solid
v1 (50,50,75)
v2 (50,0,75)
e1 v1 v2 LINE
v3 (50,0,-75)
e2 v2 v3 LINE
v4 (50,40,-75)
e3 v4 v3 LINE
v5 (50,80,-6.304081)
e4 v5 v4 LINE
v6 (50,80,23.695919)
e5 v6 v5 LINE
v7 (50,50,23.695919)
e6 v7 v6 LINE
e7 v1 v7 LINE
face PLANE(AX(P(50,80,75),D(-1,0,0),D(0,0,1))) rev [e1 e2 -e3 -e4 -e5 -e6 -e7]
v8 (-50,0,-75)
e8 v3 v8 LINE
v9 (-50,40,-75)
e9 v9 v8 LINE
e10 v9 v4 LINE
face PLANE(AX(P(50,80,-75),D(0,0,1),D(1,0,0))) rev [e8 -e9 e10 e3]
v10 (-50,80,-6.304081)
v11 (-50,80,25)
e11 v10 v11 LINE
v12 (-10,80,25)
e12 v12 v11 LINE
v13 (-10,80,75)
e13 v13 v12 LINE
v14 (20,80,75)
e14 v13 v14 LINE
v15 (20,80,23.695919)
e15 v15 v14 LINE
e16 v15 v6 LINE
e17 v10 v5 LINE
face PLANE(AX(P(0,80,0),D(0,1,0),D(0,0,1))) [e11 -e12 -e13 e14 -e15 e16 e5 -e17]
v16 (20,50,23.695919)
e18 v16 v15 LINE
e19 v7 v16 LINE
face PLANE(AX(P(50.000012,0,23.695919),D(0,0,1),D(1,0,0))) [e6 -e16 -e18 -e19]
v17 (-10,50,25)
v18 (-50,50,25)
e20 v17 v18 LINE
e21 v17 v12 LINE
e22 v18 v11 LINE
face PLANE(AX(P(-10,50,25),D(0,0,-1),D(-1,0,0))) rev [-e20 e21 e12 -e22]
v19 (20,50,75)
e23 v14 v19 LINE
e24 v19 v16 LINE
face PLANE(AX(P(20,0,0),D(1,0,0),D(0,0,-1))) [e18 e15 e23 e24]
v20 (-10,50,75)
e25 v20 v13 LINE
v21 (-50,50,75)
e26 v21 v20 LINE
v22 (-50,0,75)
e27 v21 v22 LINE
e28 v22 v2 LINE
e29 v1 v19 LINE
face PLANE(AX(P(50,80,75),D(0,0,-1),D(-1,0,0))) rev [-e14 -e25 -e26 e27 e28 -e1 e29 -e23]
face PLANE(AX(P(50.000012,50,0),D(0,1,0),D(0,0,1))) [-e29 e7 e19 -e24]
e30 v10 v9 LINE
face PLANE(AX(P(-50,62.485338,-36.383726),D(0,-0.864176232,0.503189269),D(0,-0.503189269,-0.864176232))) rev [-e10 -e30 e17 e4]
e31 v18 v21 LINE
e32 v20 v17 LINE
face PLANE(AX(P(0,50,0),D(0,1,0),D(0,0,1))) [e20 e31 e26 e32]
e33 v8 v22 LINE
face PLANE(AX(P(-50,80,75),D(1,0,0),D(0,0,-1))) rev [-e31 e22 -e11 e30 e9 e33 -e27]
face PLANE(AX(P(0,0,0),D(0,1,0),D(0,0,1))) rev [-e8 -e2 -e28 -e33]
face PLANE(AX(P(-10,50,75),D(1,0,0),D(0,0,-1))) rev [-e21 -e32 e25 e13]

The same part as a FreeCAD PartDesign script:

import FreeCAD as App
import Part
import Sketcher

V = App.Vector
Q = App.Units.Quantity

doc = App.newDocument("Part")
body = doc.addObject("PartDesign::Body", "Body")

# Sketch on XZ plane
sketch1 = body.newObject("Sketcher::SketchObject", "Sketch")
sketch1.AttachmentSupport = (doc.getObject("XZ_Plane"), [""])
sketch1.MapMode = "FlatFace"
sketch1.addGeometry([
    Part.LineSegment(V(-50, -75, 0), V(-50, 75, 0)),
    Part.LineSegment(V(-50, 75, 0), V(50, 75, 0)),
    Part.LineSegment(V(50, 75, 0), V(50, -75, 0)),
    Part.LineSegment(V(50, -75, 0), V(-50, -75, 0)),
], False)
sketch1.addConstraint([
    Sketcher.Constraint("Coincident", 0, 2, 1, 1),
    Sketcher.Constraint("Coincident", 1, 2, 2, 1),
    Sketcher.Constraint("Coincident", 2, 2, 3, 1),
    Sketcher.Constraint("Coincident", 3, 2, 0, 1),
    Sketcher.Constraint("Vertical", 0),
    Sketcher.Constraint("Horizontal", 1),
    Sketcher.Constraint("Vertical", 2),
    Sketcher.Constraint("Horizontal", 3),
    Sketcher.Constraint("Symmetric", 0, 2, 2, 2, -1, 1),
    Sketcher.Constraint("DistanceX", 1, 1, 1, 2, Q("100 mm")),
    Sketcher.Constraint("DistanceY", 0, 1, 0, 2, Q("150 mm")),
])
pad1 = body.newObject("PartDesign::Pad", "Pad")
pad1.Profile = sketch1
pad1.Length = 80
pad1.Reversed = True

# Sketch on YZ plane
sketch2 = body.newObject("Sketcher::SketchObject", "Sketch001")
sketch2.AttachmentSupport = (doc.getObject("YZ_Plane"), [""])
sketch2.MapMode = "FlatFace"
sketch2.AttachmentOffset = App.Placement(V(0, 0, 50), App.Rotation())
sketch2.addGeometry([
    Part.LineSegment(V(80, -75, 0), V(80, -6, 0)),
    Part.LineSegment(V(80, -6, 0), V(40, -75, 0)),
    Part.LineSegment(V(40, -75, 0), V(80, -75, 0)),
], False)
sketch2.addConstraint([
    Sketcher.Constraint("Coincident", 0, 2, 1, 1),
    Sketcher.Constraint("Coincident", 1, 2, 2, 1),
    Sketcher.Constraint("Coincident", 2, 2, 0, 1),
    Sketcher.Constraint("Vertical", 0),
    Sketcher.Constraint("Horizontal", 2),
    Sketcher.Constraint("DistanceX", 2, 1, 2, 2, Q("40 mm")),
    Sketcher.Constraint("DistanceX", -1, 1, 0, 2, Q("80 mm")),
    Sketcher.Constraint("DistanceY", 1, 2, -1, 1, Q("75 mm")),
    Sketcher.Constraint("DistanceY", 0, 1, 0, 2, Q("68.695919 mm")),
])
pocket1 = body.newObject("PartDesign::Pocket", "Pocket")
pocket1.Profile = sketch2
pocket1.Length = 100

# Sketch on YZ plane
sketch3 = body.newObject("Sketcher::SketchObject", "Sketch002")
sketch3.AttachmentSupport = (doc.getObject("YZ_Plane"), [""])
sketch3.MapMode = "FlatFace"
sketch3.AttachmentOffset = App.Placement(V(0, 0, 50), App.Rotation())
sketch3.addGeometry([
    Part.LineSegment(V(80, 75, 0), V(50, 75, 0)),
    Part.LineSegment(V(50, 75, 0), V(50, 24, 0)),
    Part.LineSegment(V(50, 24, 0), V(80, 24, 0)),
    Part.LineSegment(V(80, 24, 0), V(80, 75, 0)),
], False)
sketch3.addConstraint([
    Sketcher.Constraint("Coincident", 0, 2, 1, 1),
    Sketcher.Constraint("Coincident", 1, 2, 2, 1),
    Sketcher.Constraint("Coincident", 2, 2, 3, 1),
    Sketcher.Constraint("Coincident", 3, 2, 0, 1),
    Sketcher.Constraint("Horizontal", 0),
    Sketcher.Constraint("Vertical", 1),
    Sketcher.Constraint("Horizontal", 2),
    Sketcher.Constraint("Vertical", 3),
    Sketcher.Constraint("DistanceX", 0, 2, 0, 1, Q("30 mm")),
    Sketcher.Constraint("DistanceX", -1, 1, 0, 2, Q("50 mm")),
    Sketcher.Constraint("DistanceY", -1, 1, 0, 2, Q("75 mm")),
    Sketcher.Constraint("DistanceY", 1, 2, 1, 1, Q("51.304081 mm")),
])
pocket2 = body.newObject("PartDesign::Pocket", "Pocket001")
pocket2.Profile = sketch3
pocket2.Type = "TwoLengths"
pocket2.Length = 149.408221
pocket2.Length2 = 30
pocket2.Reversed = True

# Sketch on XZ plane
sketch4 = body.newObject("Sketcher::SketchObject", "Sketch003")
sketch4.AttachmentSupport = (doc.getObject("XZ_Plane"), [""])
sketch4.MapMode = "FlatFace"
sketch4.AttachmentOffset = App.Placement(V(0, 0, -80), App.Rotation())
sketch4.addGeometry([
    Part.LineSegment(V(-50, 25, 0), V(-50, 75, 0)),
    Part.LineSegment(V(-50, 75, 0), V(-10, 75, 0)),
    Part.LineSegment(V(-10, 75, 0), V(-10, 25, 0)),
    Part.LineSegment(V(-10, 25, 0), V(-50, 25, 0)),
], False)
sketch4.addConstraint([
    Sketcher.Constraint("Coincident", 0, 2, 1, 1),
    Sketcher.Constraint("Coincident", 1, 2, 2, 1),
    Sketcher.Constraint("Coincident", 2, 2, 3, 1),
    Sketcher.Constraint("Coincident", 3, 2, 0, 1),
    Sketcher.Constraint("Vertical", 0),
    Sketcher.Constraint("Horizontal", 1),
    Sketcher.Constraint("Vertical", 2),
    Sketcher.Constraint("Horizontal", 3),
    Sketcher.Constraint("DistanceX", 1, 1, 1, 2, Q("40 mm")),
    Sketcher.Constraint("DistanceY", 0, 1, 0, 2, Q("50 mm")),
    Sketcher.Constraint("DistanceX", 0, 2, -1, 1, Q("50 mm")),
    Sketcher.Constraint("DistanceY", -1, 1, 0, 2, Q("75 mm")),
])
pocket3 = body.newObject("PartDesign::Pocket", "Pocket002")
pocket3.Profile = sketch4
pocket3.Length = 30
pocket3.Reversed = True

doc.recompute()
